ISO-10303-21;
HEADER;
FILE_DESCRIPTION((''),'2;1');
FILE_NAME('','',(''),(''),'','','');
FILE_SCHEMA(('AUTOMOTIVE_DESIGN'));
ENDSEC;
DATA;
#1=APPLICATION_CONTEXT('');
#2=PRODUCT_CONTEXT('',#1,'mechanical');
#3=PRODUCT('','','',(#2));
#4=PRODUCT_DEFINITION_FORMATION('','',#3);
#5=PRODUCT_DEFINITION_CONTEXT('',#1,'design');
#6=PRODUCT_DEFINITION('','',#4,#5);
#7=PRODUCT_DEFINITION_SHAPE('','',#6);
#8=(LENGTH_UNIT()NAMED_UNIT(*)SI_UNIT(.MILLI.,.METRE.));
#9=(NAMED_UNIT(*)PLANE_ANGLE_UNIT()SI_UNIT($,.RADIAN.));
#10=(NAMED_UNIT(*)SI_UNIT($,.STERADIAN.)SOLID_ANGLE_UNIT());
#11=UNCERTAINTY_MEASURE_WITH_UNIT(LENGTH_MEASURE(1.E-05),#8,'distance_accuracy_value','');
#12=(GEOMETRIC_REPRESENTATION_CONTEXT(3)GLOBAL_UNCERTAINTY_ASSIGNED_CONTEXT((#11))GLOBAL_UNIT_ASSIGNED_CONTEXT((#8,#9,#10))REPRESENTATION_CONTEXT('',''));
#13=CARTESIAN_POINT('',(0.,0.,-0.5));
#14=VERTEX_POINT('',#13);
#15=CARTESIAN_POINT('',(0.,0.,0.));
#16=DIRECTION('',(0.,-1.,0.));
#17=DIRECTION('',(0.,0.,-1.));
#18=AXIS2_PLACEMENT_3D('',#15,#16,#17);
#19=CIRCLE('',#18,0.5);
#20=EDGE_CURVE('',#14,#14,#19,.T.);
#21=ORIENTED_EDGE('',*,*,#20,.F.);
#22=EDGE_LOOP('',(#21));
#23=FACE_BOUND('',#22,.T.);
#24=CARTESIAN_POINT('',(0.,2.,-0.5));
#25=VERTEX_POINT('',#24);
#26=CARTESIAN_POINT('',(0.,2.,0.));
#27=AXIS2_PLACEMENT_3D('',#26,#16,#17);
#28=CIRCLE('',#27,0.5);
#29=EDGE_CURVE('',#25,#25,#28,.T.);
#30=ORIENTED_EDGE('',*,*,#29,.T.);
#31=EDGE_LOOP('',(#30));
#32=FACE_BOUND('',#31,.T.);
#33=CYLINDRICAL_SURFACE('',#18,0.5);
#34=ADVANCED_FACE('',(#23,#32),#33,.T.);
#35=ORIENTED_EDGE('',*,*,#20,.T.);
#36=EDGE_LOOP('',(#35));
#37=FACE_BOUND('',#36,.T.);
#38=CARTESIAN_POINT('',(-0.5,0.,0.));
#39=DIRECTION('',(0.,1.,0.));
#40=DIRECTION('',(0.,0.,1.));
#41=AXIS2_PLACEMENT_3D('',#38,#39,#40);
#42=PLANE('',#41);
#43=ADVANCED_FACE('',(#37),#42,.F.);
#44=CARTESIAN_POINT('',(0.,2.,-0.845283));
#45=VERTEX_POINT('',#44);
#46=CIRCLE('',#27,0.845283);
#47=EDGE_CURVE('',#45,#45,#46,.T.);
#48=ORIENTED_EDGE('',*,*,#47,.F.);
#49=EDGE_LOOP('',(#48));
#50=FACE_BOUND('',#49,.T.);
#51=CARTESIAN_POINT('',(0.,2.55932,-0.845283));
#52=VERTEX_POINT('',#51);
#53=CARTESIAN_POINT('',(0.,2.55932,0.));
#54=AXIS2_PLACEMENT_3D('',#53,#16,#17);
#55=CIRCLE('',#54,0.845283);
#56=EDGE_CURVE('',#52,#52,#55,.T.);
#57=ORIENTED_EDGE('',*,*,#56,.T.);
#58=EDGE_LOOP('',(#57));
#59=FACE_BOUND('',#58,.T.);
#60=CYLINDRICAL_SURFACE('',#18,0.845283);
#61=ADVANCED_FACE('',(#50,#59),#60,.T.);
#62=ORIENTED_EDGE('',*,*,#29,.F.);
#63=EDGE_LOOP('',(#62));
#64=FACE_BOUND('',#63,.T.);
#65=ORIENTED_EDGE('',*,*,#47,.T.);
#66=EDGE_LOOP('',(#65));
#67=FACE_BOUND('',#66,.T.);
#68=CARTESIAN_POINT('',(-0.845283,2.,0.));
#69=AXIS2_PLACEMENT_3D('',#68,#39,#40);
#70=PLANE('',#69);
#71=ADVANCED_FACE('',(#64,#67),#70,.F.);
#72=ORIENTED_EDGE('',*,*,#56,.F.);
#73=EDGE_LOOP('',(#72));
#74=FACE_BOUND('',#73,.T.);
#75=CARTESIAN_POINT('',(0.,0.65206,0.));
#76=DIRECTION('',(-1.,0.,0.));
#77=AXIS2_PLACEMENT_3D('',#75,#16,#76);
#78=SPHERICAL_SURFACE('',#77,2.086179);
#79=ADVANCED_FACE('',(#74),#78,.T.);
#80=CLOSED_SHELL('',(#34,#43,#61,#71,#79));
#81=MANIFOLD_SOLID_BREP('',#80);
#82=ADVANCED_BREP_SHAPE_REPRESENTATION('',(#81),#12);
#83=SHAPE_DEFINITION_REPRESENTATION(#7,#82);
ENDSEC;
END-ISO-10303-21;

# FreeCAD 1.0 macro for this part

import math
import FreeCAD as App
import Part
import Sketcher
from FreeCAD import Vector
Q = App.Units.Quantity

doc = App.newDocument("Part")
body = doc.addObject("PartDesign::Body", "Body")

# Sketch on XY plane
sketch1 = body.newObject("Sketcher::SketchObject", "Sketch")
sketch1.AttachmentSupport = (doc.getObject("XY_Plane"), [""])
sketch1.MapMode = "FlatFace"
sketch1.addGeometry(Part.LineSegment(Vector(0, 0, 0), Vector(0, 2.74, 0)), False)
sketch1.addGeometry(Part.ArcOfCircle(Part.Circle(Vector(0, 0.65, 0), Vector(0, 0, 1), 2.09), math.radians(90), math.radians(114)), False)
sketch1.addGeometry(Part.LineSegment(Vector(-0.85, 2.56, 0), Vector(-0.85, 2, 0)), False)
sketch1.addGeometry(Part.LineSegment(Vector(-0.85, 2, 0), Vector(-0.5, 2, 0)), False)
sketch1.addGeometry(Part.LineSegment(Vector(-0.5, 2, 0), Vector(-0.5, 0, 0)), False)
sketch1.addGeometry(Part.LineSegment(Vector(-0.5, 0, 0), Vector(0, 0, 0)), False)
sketch1.addConstraint(Sketcher.Constraint("Coincident", 0, 2, 1, 1))
sketch1.addConstraint(Sketcher.Constraint("Coincident", 1, 2, 2, 1))
sketch1.addConstraint(Sketcher.Constraint("Coincident", 2, 2, 3, 1))
sketch1.addConstraint(Sketcher.Constraint("Coincident", 3, 2, 4, 1))
sketch1.addConstraint(Sketcher.Constraint("Coincident", 4, 2, 5, 1))
sketch1.addConstraint(Sketcher.Constraint("Coincident", 5, 2, 0, 1))
sketch1.addConstraint(Sketcher.Constraint("Vertical", 0))
sketch1.addConstraint(Sketcher.Constraint("Vertical", 2))
sketch1.addConstraint(Sketcher.Constraint("Horizontal", 3))
sketch1.addConstraint(Sketcher.Constraint("Vertical", 4))
sketch1.addConstraint(Sketcher.Constraint("Horizontal", 5))
sketch1.addConstraint(Sketcher.Constraint("Coincident", 5, 2, -1, 1))
sketch1.addConstraint(Sketcher.Constraint("PointOnObject", 1, 3, -2))
sketch1.addConstraint(Sketcher.Constraint("DistanceY", 4, 2, 4, 1, Q("2 mm")))
sketch1.addConstraint(Sketcher.Constraint("DistanceX", 5, 1, 5, 2, Q("0.5 mm")))
sketch1.addConstraint(Sketcher.Constraint("Radius", 1, Q("2.086179 mm")))
sketch1.addConstraint(Sketcher.Constraint("DistanceY", 0, 1, 0, 2, Q("2.738239 mm")))
sketch1.addConstraint(Sketcher.Constraint("DistanceY", 2, 2, 2, 1, Q("0.55932 mm")))
revolution = body.newObject("PartDesign::Revolution", "Revolution")
revolution.Profile = sketch1
revolution.ReferenceAxis = (sketch1, ["V_Axis"])
revolution.Angle = 360

doc.recompute()
